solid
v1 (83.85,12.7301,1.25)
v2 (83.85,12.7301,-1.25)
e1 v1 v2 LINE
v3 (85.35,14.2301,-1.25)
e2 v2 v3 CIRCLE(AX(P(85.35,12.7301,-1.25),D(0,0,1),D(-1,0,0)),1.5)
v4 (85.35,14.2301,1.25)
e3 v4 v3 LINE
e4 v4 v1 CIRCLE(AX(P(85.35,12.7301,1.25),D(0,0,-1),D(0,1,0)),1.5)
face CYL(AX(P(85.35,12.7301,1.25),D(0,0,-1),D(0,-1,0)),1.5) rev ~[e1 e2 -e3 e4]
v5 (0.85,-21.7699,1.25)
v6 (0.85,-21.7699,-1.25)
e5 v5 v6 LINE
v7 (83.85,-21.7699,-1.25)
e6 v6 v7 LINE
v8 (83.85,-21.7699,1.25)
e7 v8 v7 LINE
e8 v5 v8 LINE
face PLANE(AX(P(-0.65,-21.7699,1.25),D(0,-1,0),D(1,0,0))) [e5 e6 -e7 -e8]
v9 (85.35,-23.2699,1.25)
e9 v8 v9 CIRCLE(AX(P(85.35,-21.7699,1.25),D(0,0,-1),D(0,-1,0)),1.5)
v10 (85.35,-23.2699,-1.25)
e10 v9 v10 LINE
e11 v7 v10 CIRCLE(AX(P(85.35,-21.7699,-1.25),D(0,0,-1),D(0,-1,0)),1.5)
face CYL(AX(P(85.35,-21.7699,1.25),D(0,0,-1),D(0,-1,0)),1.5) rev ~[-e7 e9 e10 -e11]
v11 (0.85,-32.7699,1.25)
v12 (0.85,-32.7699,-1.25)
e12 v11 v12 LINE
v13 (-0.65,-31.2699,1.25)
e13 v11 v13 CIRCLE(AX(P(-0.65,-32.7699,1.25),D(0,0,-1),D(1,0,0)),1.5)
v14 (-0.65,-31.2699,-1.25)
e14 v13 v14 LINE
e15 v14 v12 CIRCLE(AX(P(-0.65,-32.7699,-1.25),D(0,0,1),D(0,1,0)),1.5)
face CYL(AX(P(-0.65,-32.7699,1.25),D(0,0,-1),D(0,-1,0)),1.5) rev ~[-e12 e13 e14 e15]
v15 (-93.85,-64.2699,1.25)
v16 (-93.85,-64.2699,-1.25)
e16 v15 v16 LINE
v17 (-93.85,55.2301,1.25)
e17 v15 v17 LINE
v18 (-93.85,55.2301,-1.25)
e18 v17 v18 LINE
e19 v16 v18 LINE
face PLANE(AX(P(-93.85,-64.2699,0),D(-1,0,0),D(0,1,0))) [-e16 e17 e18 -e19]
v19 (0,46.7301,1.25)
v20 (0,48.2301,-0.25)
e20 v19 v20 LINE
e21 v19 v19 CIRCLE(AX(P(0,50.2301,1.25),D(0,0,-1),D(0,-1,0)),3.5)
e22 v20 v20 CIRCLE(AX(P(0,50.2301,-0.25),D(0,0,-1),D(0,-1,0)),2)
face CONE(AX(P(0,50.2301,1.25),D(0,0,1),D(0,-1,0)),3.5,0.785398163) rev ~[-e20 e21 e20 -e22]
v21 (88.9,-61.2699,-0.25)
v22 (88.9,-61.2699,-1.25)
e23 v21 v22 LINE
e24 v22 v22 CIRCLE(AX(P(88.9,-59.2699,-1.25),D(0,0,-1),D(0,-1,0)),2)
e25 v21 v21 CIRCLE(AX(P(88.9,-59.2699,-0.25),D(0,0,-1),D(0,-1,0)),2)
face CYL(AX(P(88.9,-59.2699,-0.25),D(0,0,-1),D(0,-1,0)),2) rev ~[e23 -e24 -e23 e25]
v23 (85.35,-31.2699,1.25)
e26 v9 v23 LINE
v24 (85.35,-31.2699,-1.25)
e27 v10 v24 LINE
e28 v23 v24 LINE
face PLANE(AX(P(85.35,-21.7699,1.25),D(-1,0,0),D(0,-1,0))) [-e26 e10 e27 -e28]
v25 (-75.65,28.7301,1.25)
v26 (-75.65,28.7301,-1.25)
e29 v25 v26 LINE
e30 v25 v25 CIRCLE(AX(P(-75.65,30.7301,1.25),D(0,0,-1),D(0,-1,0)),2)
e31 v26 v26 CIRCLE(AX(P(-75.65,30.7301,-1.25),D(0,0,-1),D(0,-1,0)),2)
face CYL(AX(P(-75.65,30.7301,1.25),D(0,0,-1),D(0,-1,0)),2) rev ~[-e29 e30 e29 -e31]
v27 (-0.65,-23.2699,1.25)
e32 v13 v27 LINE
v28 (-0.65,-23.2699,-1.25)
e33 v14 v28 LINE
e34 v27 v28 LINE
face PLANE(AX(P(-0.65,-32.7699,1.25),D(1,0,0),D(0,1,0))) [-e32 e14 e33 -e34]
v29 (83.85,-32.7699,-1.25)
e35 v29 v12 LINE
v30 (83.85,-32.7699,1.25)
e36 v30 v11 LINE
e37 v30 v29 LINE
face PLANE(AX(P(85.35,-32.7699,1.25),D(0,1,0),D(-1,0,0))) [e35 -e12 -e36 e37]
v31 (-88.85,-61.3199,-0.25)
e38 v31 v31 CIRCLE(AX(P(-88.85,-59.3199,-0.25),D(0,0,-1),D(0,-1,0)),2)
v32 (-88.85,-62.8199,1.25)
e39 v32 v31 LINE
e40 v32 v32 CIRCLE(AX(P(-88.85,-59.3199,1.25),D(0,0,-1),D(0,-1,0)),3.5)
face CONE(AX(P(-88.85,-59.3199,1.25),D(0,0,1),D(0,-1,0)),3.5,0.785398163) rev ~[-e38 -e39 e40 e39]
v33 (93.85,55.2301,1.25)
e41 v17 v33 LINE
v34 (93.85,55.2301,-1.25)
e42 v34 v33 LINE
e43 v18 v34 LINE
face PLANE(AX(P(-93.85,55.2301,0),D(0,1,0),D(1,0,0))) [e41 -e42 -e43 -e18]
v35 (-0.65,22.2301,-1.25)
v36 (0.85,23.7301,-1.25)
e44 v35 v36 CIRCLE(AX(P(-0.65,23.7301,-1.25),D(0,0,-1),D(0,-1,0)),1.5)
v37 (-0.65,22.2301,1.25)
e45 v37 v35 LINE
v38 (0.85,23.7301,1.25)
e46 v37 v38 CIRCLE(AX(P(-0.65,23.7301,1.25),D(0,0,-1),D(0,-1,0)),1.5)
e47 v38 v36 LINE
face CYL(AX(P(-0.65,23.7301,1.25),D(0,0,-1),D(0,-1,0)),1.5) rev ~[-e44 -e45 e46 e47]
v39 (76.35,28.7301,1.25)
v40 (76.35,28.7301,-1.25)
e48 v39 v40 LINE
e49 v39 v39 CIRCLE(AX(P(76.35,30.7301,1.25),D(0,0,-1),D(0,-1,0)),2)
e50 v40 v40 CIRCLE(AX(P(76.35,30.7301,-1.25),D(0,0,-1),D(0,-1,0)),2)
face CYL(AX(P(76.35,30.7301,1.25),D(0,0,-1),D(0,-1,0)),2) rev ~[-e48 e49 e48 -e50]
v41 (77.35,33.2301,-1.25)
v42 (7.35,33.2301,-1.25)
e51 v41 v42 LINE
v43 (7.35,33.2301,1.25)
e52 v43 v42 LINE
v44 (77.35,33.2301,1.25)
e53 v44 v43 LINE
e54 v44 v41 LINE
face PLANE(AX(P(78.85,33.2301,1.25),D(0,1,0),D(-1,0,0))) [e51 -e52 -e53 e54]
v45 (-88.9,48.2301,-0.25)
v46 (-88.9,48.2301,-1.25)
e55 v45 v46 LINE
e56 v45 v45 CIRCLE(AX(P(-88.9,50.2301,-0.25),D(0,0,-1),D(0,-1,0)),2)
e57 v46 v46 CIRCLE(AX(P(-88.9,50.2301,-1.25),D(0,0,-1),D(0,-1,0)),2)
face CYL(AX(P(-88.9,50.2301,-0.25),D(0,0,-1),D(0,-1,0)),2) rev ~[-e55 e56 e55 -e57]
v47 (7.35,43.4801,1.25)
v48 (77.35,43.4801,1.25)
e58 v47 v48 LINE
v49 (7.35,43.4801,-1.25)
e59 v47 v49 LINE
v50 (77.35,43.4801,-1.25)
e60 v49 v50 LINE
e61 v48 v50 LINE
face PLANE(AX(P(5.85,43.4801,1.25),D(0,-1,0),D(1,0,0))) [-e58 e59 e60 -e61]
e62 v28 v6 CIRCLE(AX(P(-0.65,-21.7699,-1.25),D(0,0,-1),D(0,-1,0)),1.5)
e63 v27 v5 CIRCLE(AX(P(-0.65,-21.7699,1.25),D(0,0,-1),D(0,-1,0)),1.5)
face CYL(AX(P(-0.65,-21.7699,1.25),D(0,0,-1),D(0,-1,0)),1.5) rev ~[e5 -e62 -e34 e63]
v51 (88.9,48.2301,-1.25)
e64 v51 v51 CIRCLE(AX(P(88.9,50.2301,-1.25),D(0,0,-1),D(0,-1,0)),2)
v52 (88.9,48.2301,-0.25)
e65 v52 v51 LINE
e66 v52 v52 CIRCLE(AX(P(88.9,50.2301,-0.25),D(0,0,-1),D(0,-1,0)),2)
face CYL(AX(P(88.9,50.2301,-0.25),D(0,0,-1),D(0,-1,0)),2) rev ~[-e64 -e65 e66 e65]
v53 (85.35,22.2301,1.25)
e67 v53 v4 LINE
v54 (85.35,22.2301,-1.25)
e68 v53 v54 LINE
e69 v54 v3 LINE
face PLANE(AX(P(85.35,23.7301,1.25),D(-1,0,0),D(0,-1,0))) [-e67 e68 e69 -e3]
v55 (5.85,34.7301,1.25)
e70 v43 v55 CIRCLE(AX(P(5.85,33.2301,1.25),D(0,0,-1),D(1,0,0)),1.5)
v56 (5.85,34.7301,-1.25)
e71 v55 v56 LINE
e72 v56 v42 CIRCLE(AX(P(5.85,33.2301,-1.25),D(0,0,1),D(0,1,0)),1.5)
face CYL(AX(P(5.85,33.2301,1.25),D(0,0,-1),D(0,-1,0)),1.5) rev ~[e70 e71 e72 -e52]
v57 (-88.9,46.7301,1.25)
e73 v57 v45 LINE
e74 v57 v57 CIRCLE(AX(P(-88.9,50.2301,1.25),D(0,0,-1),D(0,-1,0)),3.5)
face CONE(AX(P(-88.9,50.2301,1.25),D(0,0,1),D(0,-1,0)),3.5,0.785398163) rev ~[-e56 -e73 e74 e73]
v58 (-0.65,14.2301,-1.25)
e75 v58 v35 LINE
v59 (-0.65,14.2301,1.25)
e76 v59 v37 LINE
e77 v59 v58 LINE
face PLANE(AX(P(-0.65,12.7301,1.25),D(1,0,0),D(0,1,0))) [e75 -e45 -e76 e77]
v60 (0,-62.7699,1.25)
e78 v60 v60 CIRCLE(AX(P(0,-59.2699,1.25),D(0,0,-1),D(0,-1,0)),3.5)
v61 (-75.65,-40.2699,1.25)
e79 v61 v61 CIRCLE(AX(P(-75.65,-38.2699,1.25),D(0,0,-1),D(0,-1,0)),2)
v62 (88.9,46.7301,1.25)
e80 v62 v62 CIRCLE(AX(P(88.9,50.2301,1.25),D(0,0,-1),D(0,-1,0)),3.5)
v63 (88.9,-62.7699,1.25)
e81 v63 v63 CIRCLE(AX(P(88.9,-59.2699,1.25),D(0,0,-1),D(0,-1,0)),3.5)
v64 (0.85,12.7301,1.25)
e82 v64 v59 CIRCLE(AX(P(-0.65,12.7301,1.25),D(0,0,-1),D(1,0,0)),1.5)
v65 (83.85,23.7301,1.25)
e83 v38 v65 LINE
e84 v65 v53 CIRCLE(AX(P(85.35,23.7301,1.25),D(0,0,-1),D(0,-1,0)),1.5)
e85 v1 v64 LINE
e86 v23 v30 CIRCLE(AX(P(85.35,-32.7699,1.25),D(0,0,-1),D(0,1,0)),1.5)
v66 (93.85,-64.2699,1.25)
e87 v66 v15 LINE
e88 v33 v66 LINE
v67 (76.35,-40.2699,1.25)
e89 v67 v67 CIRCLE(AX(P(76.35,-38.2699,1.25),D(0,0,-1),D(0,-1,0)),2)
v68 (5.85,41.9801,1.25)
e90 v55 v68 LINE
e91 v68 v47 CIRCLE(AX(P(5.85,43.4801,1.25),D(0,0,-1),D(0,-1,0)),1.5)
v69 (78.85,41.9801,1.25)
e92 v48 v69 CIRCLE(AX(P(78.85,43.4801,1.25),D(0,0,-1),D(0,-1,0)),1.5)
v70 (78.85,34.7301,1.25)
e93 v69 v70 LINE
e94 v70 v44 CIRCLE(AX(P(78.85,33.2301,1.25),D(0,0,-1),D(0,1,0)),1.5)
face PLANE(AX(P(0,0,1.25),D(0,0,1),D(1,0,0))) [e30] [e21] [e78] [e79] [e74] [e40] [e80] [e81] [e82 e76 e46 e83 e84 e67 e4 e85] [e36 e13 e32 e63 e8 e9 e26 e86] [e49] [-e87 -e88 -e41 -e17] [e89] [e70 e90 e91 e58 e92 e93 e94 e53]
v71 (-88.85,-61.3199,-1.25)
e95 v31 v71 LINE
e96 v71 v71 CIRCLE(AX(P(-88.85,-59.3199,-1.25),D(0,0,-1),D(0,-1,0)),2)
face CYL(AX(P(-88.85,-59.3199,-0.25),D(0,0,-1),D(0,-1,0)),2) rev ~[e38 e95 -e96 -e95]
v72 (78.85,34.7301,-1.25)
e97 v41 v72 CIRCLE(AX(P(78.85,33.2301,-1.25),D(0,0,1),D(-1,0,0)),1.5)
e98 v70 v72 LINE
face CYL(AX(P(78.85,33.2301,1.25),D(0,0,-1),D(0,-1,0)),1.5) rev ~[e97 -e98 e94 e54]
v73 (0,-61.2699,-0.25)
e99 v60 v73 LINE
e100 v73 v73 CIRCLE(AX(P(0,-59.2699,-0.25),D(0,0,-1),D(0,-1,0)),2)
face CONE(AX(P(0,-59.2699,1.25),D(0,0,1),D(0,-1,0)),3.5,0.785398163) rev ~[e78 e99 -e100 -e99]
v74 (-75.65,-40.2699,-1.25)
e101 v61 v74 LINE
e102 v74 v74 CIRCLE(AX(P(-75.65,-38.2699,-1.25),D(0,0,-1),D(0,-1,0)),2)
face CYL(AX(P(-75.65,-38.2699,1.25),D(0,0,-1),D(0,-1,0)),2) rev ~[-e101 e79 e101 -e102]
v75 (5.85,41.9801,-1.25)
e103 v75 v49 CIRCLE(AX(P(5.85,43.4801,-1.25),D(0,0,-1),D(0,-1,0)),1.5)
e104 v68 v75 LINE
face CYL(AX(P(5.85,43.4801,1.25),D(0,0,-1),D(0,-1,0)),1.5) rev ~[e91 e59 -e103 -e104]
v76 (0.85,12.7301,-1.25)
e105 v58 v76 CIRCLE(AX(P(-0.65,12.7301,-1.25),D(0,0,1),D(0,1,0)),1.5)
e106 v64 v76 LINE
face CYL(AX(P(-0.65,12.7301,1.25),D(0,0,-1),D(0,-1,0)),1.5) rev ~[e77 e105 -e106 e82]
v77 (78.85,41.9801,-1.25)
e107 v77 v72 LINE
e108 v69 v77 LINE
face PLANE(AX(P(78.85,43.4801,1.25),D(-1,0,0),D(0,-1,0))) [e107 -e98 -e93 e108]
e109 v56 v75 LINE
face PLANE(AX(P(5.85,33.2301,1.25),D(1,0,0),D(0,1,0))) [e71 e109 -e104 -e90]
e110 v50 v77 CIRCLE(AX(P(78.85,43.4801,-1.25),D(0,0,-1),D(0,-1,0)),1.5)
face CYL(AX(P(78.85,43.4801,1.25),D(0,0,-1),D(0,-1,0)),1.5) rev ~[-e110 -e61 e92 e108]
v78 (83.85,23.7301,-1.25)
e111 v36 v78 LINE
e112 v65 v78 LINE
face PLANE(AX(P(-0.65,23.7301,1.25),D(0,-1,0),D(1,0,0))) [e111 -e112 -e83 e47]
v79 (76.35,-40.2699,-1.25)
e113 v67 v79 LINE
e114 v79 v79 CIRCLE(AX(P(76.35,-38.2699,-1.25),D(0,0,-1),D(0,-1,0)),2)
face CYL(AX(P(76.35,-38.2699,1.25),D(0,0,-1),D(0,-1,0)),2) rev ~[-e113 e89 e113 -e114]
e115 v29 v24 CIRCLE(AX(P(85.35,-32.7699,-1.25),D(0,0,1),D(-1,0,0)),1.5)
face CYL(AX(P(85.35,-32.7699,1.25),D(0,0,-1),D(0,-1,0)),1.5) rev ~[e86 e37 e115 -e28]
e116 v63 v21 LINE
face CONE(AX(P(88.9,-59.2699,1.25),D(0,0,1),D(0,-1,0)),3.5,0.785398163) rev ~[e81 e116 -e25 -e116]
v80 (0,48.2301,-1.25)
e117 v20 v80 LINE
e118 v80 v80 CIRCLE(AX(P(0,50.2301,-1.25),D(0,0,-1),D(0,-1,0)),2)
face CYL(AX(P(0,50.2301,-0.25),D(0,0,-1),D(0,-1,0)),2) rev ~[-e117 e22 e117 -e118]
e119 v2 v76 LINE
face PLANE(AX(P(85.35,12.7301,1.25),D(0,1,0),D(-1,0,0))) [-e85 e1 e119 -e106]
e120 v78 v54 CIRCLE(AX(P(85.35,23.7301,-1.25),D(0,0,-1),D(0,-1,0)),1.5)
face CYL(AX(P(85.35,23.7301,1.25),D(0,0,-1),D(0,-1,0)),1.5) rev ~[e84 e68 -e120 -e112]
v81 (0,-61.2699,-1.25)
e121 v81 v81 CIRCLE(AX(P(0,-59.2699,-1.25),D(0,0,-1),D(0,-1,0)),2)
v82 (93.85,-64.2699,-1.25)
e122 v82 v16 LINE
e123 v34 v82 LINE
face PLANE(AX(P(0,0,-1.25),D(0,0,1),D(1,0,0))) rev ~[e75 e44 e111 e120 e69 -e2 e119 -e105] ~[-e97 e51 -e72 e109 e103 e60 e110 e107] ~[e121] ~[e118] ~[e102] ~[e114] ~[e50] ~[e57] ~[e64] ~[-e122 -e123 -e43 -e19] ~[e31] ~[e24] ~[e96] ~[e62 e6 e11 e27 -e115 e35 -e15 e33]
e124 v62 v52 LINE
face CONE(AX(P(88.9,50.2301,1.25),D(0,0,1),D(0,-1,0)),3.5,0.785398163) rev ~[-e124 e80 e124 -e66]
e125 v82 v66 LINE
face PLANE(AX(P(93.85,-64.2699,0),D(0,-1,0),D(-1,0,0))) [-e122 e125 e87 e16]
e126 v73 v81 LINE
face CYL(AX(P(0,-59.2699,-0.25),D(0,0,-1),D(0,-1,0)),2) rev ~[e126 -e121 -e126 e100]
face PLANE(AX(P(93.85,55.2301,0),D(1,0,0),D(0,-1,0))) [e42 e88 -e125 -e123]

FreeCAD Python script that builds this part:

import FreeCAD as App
import Part
import Sketcher
from FreeCAD import Vector
Q = App.Units.Quantity

doc = App.newDocument("Part")
params = doc.addObject("Spreadsheet::Sheet", "Params")
for row, (alias, value) in enumerate([
    ("sketch1_width", "187.7 mm"),
    ("sketch1_height", "119.5 mm"),
    ("pad1_length", "2.5 mm"),
    ("sketch2_diameter", "4 mm"),
    ("hole_diameter", "4 mm"),
    ("hole_csink_diameter", "7 mm"),
    ("sketch3_diameter", "4 mm"),
    ("hole2_diameter", "4 mm"),
    ("hole2_csink_diameter", "7 mm"),
    ("sketch4_diameter", "4 mm"),
    ("hole3_diameter", "4 mm"),
    ("hole3_csink_diameter", "7 mm"),
    ("sketch5_diameter", "4 mm"),
    ("hole4_diameter", "4 mm"),
    ("hole4_csink_diameter", "7 mm"),
    ("sketch6_diameter", "4 mm"),
    ("hole5_diameter", "4 mm"),
    ("hole5_csink_diameter", "7 mm"),
    ("sketch7_diameter", "4 mm"),
    ("hole6_diameter", "4 mm"),
    ("hole6_csink_diameter", "7 mm"),
    ("sketch8_diameter", "4 mm"),
    ("hole7_diameter", "4 mm"),
    ("sketch9_diameter", "4 mm"),
    ("hole8_diameter", "4 mm"),
    ("sketch10_diameter", "4 mm"),
    ("hole9_diameter", "4 mm"),
    ("sketch11_diameter", "4 mm"),
    ("hole10_diameter", "4 mm"),
    ("sketch12_width", "86 mm"),
    ("sketch12_height", "11 mm"),
    ("linearpattern_pitch", "45.5 mm"),
    ("sketch13_width", "73 mm"),
    ("sketch13_height", "10.25 mm"),
    ("sketch14_diameter", "3 mm"),
    ("hole11_diameter", "3 mm"),
    ("sketch15_diameter", "3 mm"),
    ("hole12_diameter", "3 mm"),
    ("sketch16_diameter", "3 mm"),
    ("hole13_diameter", "3 mm"),
    ("sketch17_diameter", "3 mm"),
    ("hole14_diameter", "3 mm"),
    ("sketch18_diameter", "3 mm"),
    ("hole15_diameter", "3 mm"),
    ("sketch19_diameter", "3 mm"),
    ("hole16_diameter", "3 mm"),
    ("sketch20_diameter", "3 mm"),
    ("hole17_diameter", "3 mm"),
    ("sketch21_diameter", "3 mm"),
    ("hole18_diameter", "3 mm"),
    ("sketch22_diameter", "3 mm"),
    ("hole19_diameter", "3 mm"),
    ("sketch23_diameter", "3 mm"),
    ("hole20_diameter", "3 mm"),
    ("sketch24_diameter", "3 mm"),
    ("hole21_diameter", "3 mm"),
    ("sketch25_diameter", "3 mm"),
    ("hole22_diameter", "3 mm"),
], start=1):
    params.set(f"A{row}", alias)
    params.set(f"B{row}", "=" + value)
    params.setAlias(f"B{row}", alias)

body = doc.addObject("PartDesign::Body", "Body")

sketch1 = body.newObject("Sketcher::SketchObject", "Sketch")
sketch1.AttachmentSupport = (doc.getObject("XY_Plane"), [""])
sketch1.MapMode = "FlatFace"
sketch1.addGeometry([
    Part.LineSegment(Vector(-93.85, -64.2699, 0), Vector(93.85, -64.2699, 0)),
    Part.LineSegment(Vector(93.85, -64.2699, 0), Vector(93.85, 55.2301, 0)),
    Part.LineSegment(Vector(93.85, 55.2301, 0), Vector(-93.85, 55.2301, 0)),
    Part.LineSegment(Vector(-93.85, 55.2301, 0), Vector(-93.85, -64.2699, 0)),
], False)
sketch1.addConstraint([
    Sketcher.Constraint("Coincident", 0, 2, 1, 1),
    Sketcher.Constraint("Coincident", 1, 2, 2, 1),
    Sketcher.Constraint("Coincident", 2, 2, 3, 1),
    Sketcher.Constraint("Coincident", 3, 2, 0, 1),
    Sketcher.Constraint("Horizontal", 0),
    Sketcher.Constraint("Vertical", 1),
    Sketcher.Constraint("Horizontal", 2),
    Sketcher.Constraint("Vertical", 3),
    Sketcher.Constraint("DistanceX", 0, 1, 0, 2, Q("187.7 mm")),
    Sketcher.Constraint("DistanceY", 1, 1, 1, 2, Q("119.5 mm")),
    Sketcher.Constraint("DistanceX", -1, 1, 0, 2, Q("93.85 mm")),
    Sketcher.Constraint("DistanceY", 0, 2, -1, 1, Q("64.27 mm")),
])
sketch1.setExpression("Constraints[8]", "Params.sketch1_width")
sketch1.setExpression("Constraints[9]", "Params.sketch1_height")
pad1 = body.newObject("PartDesign::Pad", "Pad")
pad1.Profile = sketch1
pad1.setExpression("Length", "Params.pad1_length")
pad1.Midplane = True

sketch2 = body.newObject("Sketcher::SketchObject", "Sketch001")
sketch2.AttachmentSupport = (doc.getObject("XY_Plane"), [""])
sketch2.MapMode = "FlatFace"
sketch2.AttachmentOffset = App.Placement(Vector(0, 0, 1.25), App.Rotation())
sketch2.addGeometry(Part.Circle(Vector(-88.85, -59.3199, 0), Vector(0, 0, 1), 2), False)
sketch2.addConstraint([
    Sketcher.Constraint("Diameter", 0, Q("4 mm")),
    Sketcher.Constraint("DistanceX", 0, 3, -1, 1, Q("88.85 mm")),
    Sketcher.Constraint("DistanceY", 0, 3, -1, 1, Q("59.32 mm")),
])
sketch2.setExpression("Constraints[0]", "Params.sketch2_diameter")
doc.recompute()
hole = body.newObject("PartDesign::Hole", "Hole")
hole.Profile = sketch2
hole.ThreadType = "None"
hole.setExpression("Diameter", "Params.hole_diameter")
hole.DepthType = "ThroughAll"
hole.HoleCutType = "Countersink"
hole.setExpression("HoleCutDiameter", "Params.hole_csink_diameter")
hole.HoleCutCountersinkAngle = 90

sketch3 = body.newObject("Sketcher::SketchObject", "Sketch002")
sketch3.AttachmentSupport = (doc.getObject("XY_Plane"), [""])
sketch3.MapMode = "FlatFace"
sketch3.AttachmentOffset = App.Placement(Vector(0, 0, 1.25), App.Rotation())
sketch3.addGeometry(Part.Circle(Vector(0, -59.2699, 0), Vector(0, 0, 1), 2), False)
sketch3.addConstraint([
    Sketcher.Constraint("PointOnObject", 0, 3, -2),
    Sketcher.Constraint("Diameter", 0, Q("4 mm")),
    Sketcher.Constraint("DistanceY", 0, 3, -1, 1, Q("59.27 mm")),
])
sketch3.setExpression("Constraints[1]", "Params.sketch3_diameter")
doc.recompute()
hole2 = body.newObject("PartDesign::Hole", "Hole001")
hole2.Profile = sketch3
hole2.ThreadType = "None"
hole2.setExpression("Diameter", "Params.hole2_diameter")
hole2.DepthType = "ThroughAll"
hole2.HoleCutType = "Countersink"
hole2.setExpression("HoleCutDiameter", "Params.hole2_csink_diameter")
hole2.HoleCutCountersinkAngle = 90

sketch4 = body.newObject("Sketcher::SketchObject", "Sketch003")
sketch4.AttachmentSupport = (doc.getObject("XY_Plane"), [""])
sketch4.MapMode = "FlatFace"
sketch4.AttachmentOffset = App.Placement(Vector(0, 0, 1.25), App.Rotation())
sketch4.addGeometry(Part.Circle(Vector(88.9, -59.2699, 0), Vector(0, 0, 1), 2), False)
sketch4.addConstraint([
    Sketcher.Constraint("Diameter", 0, Q("4 mm")),
    Sketcher.Constraint("DistanceX", -1, 1, 0, 3, Q("88.9 mm")),
    Sketcher.Constraint("DistanceY", 0, 3, -1, 1, Q("59.27 mm")),
])
sketch4.setExpression("Constraints[0]", "Params.sketch4_diameter")
doc.recompute()
hole3 = body.newObject("PartDesign::Hole", "Hole002")
hole3.Profile = sketch4
hole3.ThreadType = "None"
hole3.setExpression("Diameter", "Params.hole3_diameter")
hole3.DepthType = "ThroughAll"
hole3.HoleCutType = "Countersink"
hole3.setExpression("HoleCutDiameter", "Params.hole3_csink_diameter")
hole3.HoleCutCountersinkAngle = 90

sketch5 = body.newObject("Sketcher::SketchObject", "Sketch004")
sketch5.AttachmentSupport = (doc.getObject("XY_Plane"), [""])
sketch5.MapMode = "FlatFace"
sketch5.AttachmentOffset = App.Placement(Vector(0, 0, 1.25), App.Rotation())
sketch5.addGeometry(Part.Circle(Vector(-88.9, 50.2301, 0), Vector(0, 0, 1), 2), False)
sketch5.addConstraint([
    Sketcher.Constraint("Diameter", 0, Q("4 mm")),
    Sketcher.Constraint("DistanceX", 0, 3, -1, 1, Q("88.9 mm")),
    Sketcher.Constraint("DistanceY", -1, 1, 0, 3, Q("50.23 mm")),
])
sketch5.setExpression("Constraints[0]", "Params.sketch5_diameter")
doc.recompute()
hole4 = body.newObject("PartDesign::Hole", "Hole003")
hole4.Profile = sketch5
hole4.ThreadType = "None"
hole4.setExpression("Diameter", "Params.hole4_diameter")
hole4.DepthType = "ThroughAll"
hole4.HoleCutType = "Countersink"
hole4.setExpression("HoleCutDiameter", "Params.hole4_csink_diameter")
hole4.HoleCutCountersinkAngle = 90

sketch6 = body.newObject("Sketcher::SketchObject", "Sketch005")
sketch6.AttachmentSupport = (doc.getObject("XY_Plane"), [""])
sketch6.MapMode = "FlatFace"
sketch6.AttachmentOffset = App.Placement(Vector(0, 0, 1.25), App.Rotation())
sketch6.addGeometry(Part.Circle(Vector(0, 50.2301, 0), Vector(0, 0, 1), 2), False)
sketch6.addConstraint([
    Sketcher.Constraint("PointOnObject", 0, 3, -2),
    Sketcher.Constraint("Diameter", 0, Q("4 mm")),
    Sketcher.Constraint("DistanceY", -1, 1, 0, 3, Q("50.23 mm")),
])
sketch6.setExpression("Constraints[1]", "Params.sketch6_diameter")
doc.recompute()
hole5 = body.newObject("PartDesign::Hole", "Hole004")
hole5.Profile = sketch6
hole5.ThreadType = "None"
hole5.setExpression("Diameter", "Params.hole5_diameter")
hole5.DepthType = "ThroughAll"
hole5.HoleCutType = "Countersink"
hole5.setExpression("HoleCutDiameter", "Params.hole5_csink_diameter")
hole5.HoleCutCountersinkAngle = 90

sketch7 = body.newObject("Sketcher::SketchObject", "Sketch006")
sketch7.AttachmentSupport = (doc.getObject("XY_Plane"), [""])
sketch7.MapMode = "FlatFace"
sketch7.AttachmentOffset = App.Placement(Vector(0, 0, 1.25), App.Rotation())
sketch7.addGeometry(Part.Circle(Vector(88.9, 50.2301, 0), Vector(0, 0, 1), 2), False)
sketch7.addConstraint([
    Sketcher.Constraint("Diameter", 0, Q("4 mm")),
    Sketcher.Constraint("DistanceX", -1, 1, 0, 3, Q("88.9 mm")),
    Sketcher.Constraint("DistanceY", -1, 1, 0, 3, Q("50.23 mm")),
])
sketch7.setExpression("Constraints[0]", "Params.sketch7_diameter")
doc.recompute()
hole6 = body.newObject("PartDesign::Hole", "Hole005")
hole6.Profile = sketch7
hole6.ThreadType = "None"
hole6.setExpression("Diameter", "Params.hole6_diameter")
hole6.DepthType = "ThroughAll"
hole6.HoleCutType = "Countersink"
hole6.setExpression("HoleCutDiameter", "Params.hole6_csink_diameter")
hole6.HoleCutCountersinkAngle = 90

sketch8 = body.newObject("Sketcher::SketchObject", "Sketch007")
sketch8.AttachmentSupport = (doc.getObject("XY_Plane"), [""])
sketch8.MapMode = "FlatFace"
sketch8.AttachmentOffset = App.Placement(Vector(0, 0, 1.25), App.Rotation())
sketch8.addGeometry(Part.Circle(Vector(76.35, -38.2699, 0), Vector(0, 0, 1), 2), False)
sketch8.addConstraint([
    Sketcher.Constraint("Diameter", 0, Q("4 mm")),
    Sketcher.Constraint("DistanceX", -1, 1, 0, 3, Q("76.35 mm")),
    Sketcher.Constraint("DistanceY", 0, 3, -1, 1, Q("38.27 mm")),
])
sketch8.setExpression("Constraints[0]", "Params.sketch8_diameter")
doc.recompute()
hole7 = body.newObject("PartDesign::Hole", "Hole006")
hole7.Profile = sketch8
hole7.ThreadType = "None"
hole7.setExpression("Diameter", "Params.hole7_diameter")
hole7.DepthType = "ThroughAll"

sketch9 = body.newObject("Sketcher::SketchObject", "Sketch008")
sketch9.AttachmentSupport = (doc.getObject("XY_Plane"), [""])
sketch9.MapMode = "FlatFace"
sketch9.AttachmentOffset = App.Placement(Vector(0, 0, 1.25), App.Rotation())
sketch9.addGeometry(Part.Circle(Vector(76.35, 30.7301, 0), Vector(0, 0, 1), 2), False)
sketch9.addConstraint([
    Sketcher.Constraint("Diameter", 0, Q("4 mm")),
    Sketcher.Constraint("DistanceX", -1, 1, 0, 3, Q("76.35 mm")),
    Sketcher.Constraint("DistanceY", -1, 1, 0, 3, Q("30.73 mm")),
])
sketch9.setExpression("Constraints[0]", "Params.sketch9_diameter")
doc.recompute()
hole8 = body.newObject("PartDesign::Hole", "Hole007")
hole8.Profile = sketch9
hole8.ThreadType = "None"
hole8.setExpression("Diameter", "Params.hole8_diameter")
hole8.DepthType = "ThroughAll"

sketch10 = body.newObject("Sketcher::SketchObject", "Sketch009")
sketch10.AttachmentSupport = (doc.getObject("XY_Plane"), [""])
sketch10.MapMode = "FlatFace"
sketch10.AttachmentOffset = App.Placement(Vector(0, 0, 1.25), App.Rotation())
sketch10.addGeometry(Part.Circle(Vector(-75.65, -38.2699, 0), Vector(0, 0, 1), 2), False)
sketch10.addConstraint([
    Sketcher.Constraint("Diameter", 0, Q("4 mm")),
    Sketcher.Constraint("DistanceX", 0, 3, -1, 1, Q("75.65 mm")),
    Sketcher.Constraint("DistanceY", 0, 3, -1, 1, Q("38.27 mm")),
])
sketch10.setExpression("Constraints[0]", "Params.sketch10_diameter")
doc.recompute()
hole9 = body.newObject("PartDesign::Hole", "Hole008")
hole9.Profile = sketch10
hole9.ThreadType = "None"
hole9.setExpression("Diameter", "Params.hole9_diameter")
hole9.DepthType = "ThroughAll"

sketch11 = body.newObject("Sketcher::SketchObject", "Sketch010")
sketch11.AttachmentSupport = (doc.getObject("XY_Plane"), [""])
sketch11.MapMode = "FlatFace"
sketch11.AttachmentOffset = App.Placement(Vector(0, 0, 1.25), App.Rotation())
sketch11.addGeometry(Part.Circle(Vector(-75.65, 30.7301, 0), Vector(0, 0, 1), 2), False)
sketch11.addConstraint([
    Sketcher.Constraint("Diameter", 0, Q("4 mm")),
    Sketcher.Constraint("DistanceX", 0, 3, -1, 1, Q("75.65 mm")),
    Sketcher.Constraint("DistanceY", -1, 1, 0, 3, Q("30.73 mm")),
])
sketch11.setExpression("Constraints[0]", "Params.sketch11_diameter")
doc.recompute()
hole10 = body.newObject("PartDesign::Hole", "Hole009")
hole10.Profile = sketch11
hole10.ThreadType = "None"
hole10.setExpression("Diameter", "Params.hole10_diameter")
hole10.DepthType = "ThroughAll"

sketch12 = body.newObject("Sketcher::SketchObject", "Sketch011")
sketch12.AttachmentSupport = (doc.getObject("XY_Plane"), [""])
sketch12.MapMode = "FlatFace"
sketch12.AttachmentOffset = App.Placement(Vector(0, 0, 1.25), App.Rotation())
sketch12.addGeometry([
    Part.LineSegment(Vector(85.35, -21.7699, 0), Vector(-0.65, -21.7699, 0)),
    Part.LineSegment(Vector(-0.65, -21.7699, 0), Vector(-0.65, -32.7699, 0)),
    Part.LineSegment(Vector(-0.65, -32.7699, 0), Vector(85.35, -32.7699, 0)),
    Part.LineSegment(Vector(85.35, -32.7699, 0), Vector(85.35, -21.7699, 0)),
], False)
sketch12.addConstraint([
    Sketcher.Constraint("Coincident", 0, 2, 1, 1),
    Sketcher.Constraint("Coincident", 1, 2, 2, 1),
    Sketcher.Constraint("Coincident", 2, 2, 3, 1),
    Sketcher.Constraint("Coincident", 3, 2, 0, 1),
    Sketcher.Constraint("Horizontal", 0),
    Sketcher.Constraint("Vertical", 1),
    Sketcher.Constraint("Horizontal", 2),
    Sketcher.Constraint("Vertical", 3),
    Sketcher.Constraint("DistanceX", 0, 2, 0, 1, Q("86 mm")),
    Sketcher.Constraint("DistanceY", 1, 2, 1, 1, Q("11 mm")),
    Sketcher.Constraint("DistanceX", 0, 2, -1, 1, Q("0.65 mm")),
    Sketcher.Constraint("DistanceY", 0, 2, -1, 1, Q("21.77 mm")),
])
sketch12.setExpression("Constraints[8]", "Params.sketch12_width")
sketch12.setExpression("Constraints[9]", "Params.sketch12_height")
pocket1 = body.newObject("PartDesign::Pocket", "Pocket")
pocket1.Profile = sketch12
pocket1.Type = "ThroughAll"
pocket1.Midplane = True
doc.recompute()

linearpattern = body.newObject("PartDesign::LinearPattern", "LinearPattern")
linearpattern.Originals = [pocket1]
linearpattern.Direction = (doc.getObject("Y_Axis"), [""])
linearpattern.Mode = "offset"
linearpattern.setExpression("Offset", "Params.linearpattern_pitch")
linearpattern.Occurrences = 2
body.Tip = linearpattern

sketch13 = body.newObject("Sketcher::SketchObject", "Sketch012")
sketch13.AttachmentSupport = (doc.getObject("XY_Plane"), [""])
sketch13.MapMode = "FlatFace"
sketch13.AttachmentOffset = App.Placement(Vector(0, 0, 1.25), App.Rotation())
sketch13.addGeometry([
    Part.LineSegment(Vector(78.85, 43.4801, 0), Vector(5.85, 43.4801, 0)),
    Part.LineSegment(Vector(5.85, 43.4801, 0), Vector(5.85, 33.2301, 0)),
    Part.LineSegment(Vector(5.85, 33.2301, 0), Vector(78.85, 33.2301, 0)),
    Part.LineSegment(Vector(78.85, 33.2301, 0), Vector(78.85, 43.4801, 0)),
], False)
sketch13.addConstraint([
    Sketcher.Constraint("Coincident", 0, 2, 1, 1),
    Sketcher.Constraint("Coincident", 1, 2, 2, 1),
    Sketcher.Constraint("Coincident", 2, 2, 3, 1),
    Sketcher.Constraint("Coincident", 3, 2, 0, 1),
    Sketcher.Constraint("Horizontal", 0),
    Sketcher.Constraint("Vertical", 1),
    Sketcher.Constraint("Horizontal", 2),
    Sketcher.Constraint("Vertical", 3),
    Sketcher.Constraint("DistanceX", 0, 2, 0, 1, Q("73 mm")),
    Sketcher.Constraint("DistanceY", 1, 2, 1, 1, Q("10.25 mm")),
    Sketcher.Constraint("DistanceX", -1, 1, 0, 2, Q("5.85 mm")),
    Sketcher.Constraint("DistanceY", -1, 1, 0, 2, Q("43.48 mm")),
])
sketch13.setExpression("Constraints[8]", "Params.sketch13_width")
sketch13.setExpression("Constraints[9]", "Params.sketch13_height")
pocket2 = body.newObject("PartDesign::Pocket", "Pocket001")
pocket2.Profile = sketch13
pocket2.Type = "ThroughAll"

sketch14 = body.newObject("Sketcher::SketchObject", "Sketch013")
sketch14.AttachmentSupport = (doc.getObject("XY_Plane"), [""])
sketch14.MapMode = "FlatFace"
sketch14.AttachmentOffset = App.Placement(Vector(0, 0, 1.25), App.Rotation())
sketch14.addGeometry(Part.Circle(Vector(5.85, 43.4801, 0), Vector(0, 0, 1), 1.5), False)
sketch14.addConstraint([
    Sketcher.Constraint("Diameter", 0, Q("3 mm")),
    Sketcher.Constraint("DistanceX", -1, 1, 0, 3, Q("5.85 mm")),
    Sketcher.Constraint("DistanceY", -1, 1, 0, 3, Q("43.48 mm")),
])
sketch14.setExpression("Constraints[0]", "Params.sketch14_diameter")
doc.recompute()
hole11 = body.newObject("PartDesign::Hole", "Hole010")
hole11.Profile = sketch14
hole11.ThreadType = "None"
hole11.setExpression("Diameter", "Params.hole11_diameter")
hole11.DepthType = "ThroughAll"

sketch15 = body.newObject("Sketcher::SketchObject", "Sketch014")
sketch15.AttachmentSupport = (doc.getObject("XY_Plane"), [""])
sketch15.MapMode = "FlatFace"
sketch15.AttachmentOffset = App.Placement(Vector(0, 0, 1.25), App.Rotation())
sketch15.addGeometry(Part.Circle(Vector(78.85, 43.4801, 0), Vector(0, 0, 1), 1.5), False)
sketch15.addConstraint([
    Sketcher.Constraint("Diameter", 0, Q("3 mm")),
    Sketcher.Constraint("DistanceX", -1, 1, 0, 3, Q("78.85 mm")),
    Sketcher.Constraint("DistanceY", -1, 1, 0, 3, Q("43.48 mm")),
])
sketch15.setExpression("Constraints[0]", "Params.sketch15_diameter")
doc.recompute()
hole12 = body.newObject("PartDesign::Hole", "Hole011")
hole12.Profile = sketch15
hole12.ThreadType = "None"
hole12.setExpression("Diameter", "Params.hole12_diameter")
hole12.DepthType = "ThroughAll"

sketch16 = body.newObject("Sketcher::SketchObject", "Sketch015")
sketch16.AttachmentSupport = (doc.getObject("XY_Plane"), [""])
sketch16.MapMode = "FlatFace"
sketch16.AttachmentOffset = App.Placement(Vector(0, 0, 1.25), App.Rotation())
sketch16.addGeometry(Part.Circle(Vector(5.85, 33.2301, 0), Vector(0, 0, 1), 1.5), False)
sketch16.addConstraint([
    Sketcher.Constraint("Diameter", 0, Q("3 mm")),
    Sketcher.Constraint("DistanceX", -1, 1, 0, 3, Q("5.85 mm")),
    Sketcher.Constraint("DistanceY", -1, 1, 0, 3, Q("33.23 mm")),
])
sketch16.setExpression("Constraints[0]", "Params.sketch16_diameter")
doc.recompute()
hole13 = body.newObject("PartDesign::Hole", "Hole012")
hole13.Profile = sketch16
hole13.ThreadType = "None"
hole13.setExpression("Diameter", "Params.hole13_diameter")
hole13.DepthType = "ThroughAll"

sketch17 = body.newObject("Sketcher::SketchObject", "Sketch016")
sketch17.AttachmentSupport = (doc.getObject("XY_Plane"), [""])
sketch17.MapMode = "FlatFace"
sketch17.AttachmentOffset = App.Placement(Vector(0, 0, 1.25), App.Rotation())
sketch17.addGeometry(Part.Circle(Vector(78.85, 33.2301, 0), Vector(0, 0, 1), 1.5), False)
sketch17.addConstraint([
    Sketcher.Constraint("Diameter", 0, Q("3 mm")),
    Sketcher.Constraint("DistanceX", -1, 1, 0, 3, Q("78.85 mm")),
    Sketcher.Constraint("DistanceY", -1, 1, 0, 3, Q("33.23 mm")),
])
sketch17.setExpression("Constraints[0]", "Params.sketch17_diameter")
doc.recompute()
hole14 = body.newObject("PartDesign::Hole", "Hole013")
hole14.Profile = sketch17
hole14.ThreadType = "None"
hole14.setExpression("Diameter", "Params.hole14_diameter")
hole14.DepthType = "ThroughAll"

sketch18 = body.newObject("Sketcher::SketchObject", "Sketch017")
sketch18.AttachmentSupport = (doc.getObject("XY_Plane"), [""])
sketch18.MapMode = "FlatFace"
sketch18.AttachmentOffset = App.Placement(Vector(0, 0, 1.25), App.Rotation())
sketch18.addGeometry(Part.Circle(Vector(-0.65, 23.7301, 0), Vector(0, 0, 1), 1.5), False)
sketch18.addConstraint([
    Sketcher.Constraint("Diameter", 0, Q("3 mm")),
    Sketcher.Constraint("DistanceX", 0, 3, -1, 1, Q("0.65 mm")),
    Sketcher.Constraint("DistanceY", -1, 1, 0, 3, Q("23.73 mm")),
])
sketch18.setExpression("Constraints[0]", "Params.sketch18_diameter")
doc.recompute()
hole15 = body.newObject("PartDesign::Hole", "Hole014")
hole15.Profile = sketch18
hole15.ThreadType = "None"
hole15.setExpression("Diameter", "Params.hole15_diameter")
hole15.DepthType = "ThroughAll"

sketch19 = body.newObject("Sketcher::SketchObject", "Sketch018")
sketch19.AttachmentSupport = (doc.getObject("XY_Plane"), [""])
sketch19.MapMode = "FlatFace"
sketch19.AttachmentOffset = App.Placement(Vector(0, 0, 1.25), App.Rotation())
sketch19.addGeometry(Part.Circle(Vector(-0.65, 12.7301, 0), Vector(0, 0, 1), 1.5), False)
sketch19.addConstraint([
    Sketcher.Constraint("Diameter", 0, Q("3 mm")),
    Sketcher.Constraint("DistanceX", 0, 3, -1, 1, Q("0.65 mm")),
    Sketcher.Constraint("DistanceY", -1, 1, 0, 3, Q("12.73 mm")),
])
sketch19.setExpression("Constraints[0]", "Params.sketch19_diameter")
doc.recompute()
hole16 = body.newObject("PartDesign::Hole", "Hole015")
hole16.Profile = sketch19
hole16.ThreadType = "None"
hole16.setExpression("Diameter", "Params.hole16_diameter")
hole16.DepthType = "ThroughAll"

sketch20 = body.newObject("Sketcher::SketchObject", "Sketch019")
sketch20.AttachmentSupport = (doc.getObject("XY_Plane"), [""])
sketch20.MapMode = "FlatFace"
sketch20.AttachmentOffset = App.Placement(Vector(0, 0, 1.25), App.Rotation())
sketch20.addGeometry(Part.Circle(Vector(85.35, 12.7301, 0), Vector(0, 0, 1), 1.5), False)
sketch20.addConstraint([
    Sketcher.Constraint("Diameter", 0, Q("3 mm")),
    Sketcher.Constraint("DistanceX", -1, 1, 0, 3, Q("85.35 mm")),
    Sketcher.Constraint("DistanceY", -1, 1, 0, 3, Q("12.73 mm")),
])
sketch20.setExpression("Constraints[0]", "Params.sketch20_diameter")
doc.recompute()
hole17 = body.newObject("PartDesign::Hole", "Hole016")
hole17.Profile = sketch20
hole17.ThreadType = "None"
hole17.setExpression("Diameter", "Params.hole17_diameter")
hole17.DepthType = "ThroughAll"

sketch21 = body.newObject("Sketcher::SketchObject", "Sketch020")
sketch21.AttachmentSupport = (doc.getObject("XY_Plane"), [""])
sketch21.MapMode = "FlatFace"
sketch21.AttachmentOffset = App.Placement(Vector(0, 0, 1.25), App.Rotation())
sketch21.addGeometry(Part.Circle(Vector(85.35, 23.7301, 0), Vector(0, 0, 1), 1.5), False)
sketch21.addConstraint([
    Sketcher.Constraint("Diameter", 0, Q("3 mm")),
    Sketcher.Constraint("DistanceX", -1, 1, 0, 3, Q("85.35 mm")),
    Sketcher.Constraint("DistanceY", -1, 1, 0, 3, Q("23.73 mm")),
])
sketch21.setExpression("Constraints[0]", "Params.sketch21_diameter")
doc.recompute()
hole18 = body.newObject("PartDesign::Hole", "Hole017")
hole18.Profile = sketch21
hole18.ThreadType = "None"
hole18.setExpression("Diameter", "Params.hole18_diameter")
hole18.DepthType = "ThroughAll"

sketch22 = body.newObject("Sketcher::SketchObject", "Sketch021")
sketch22.AttachmentSupport = (doc.getObject("XY_Plane"), [""])
sketch22.MapMode = "FlatFace"
sketch22.AttachmentOffset = App.Placement(Vector(0, 0, 1.25), App.Rotation())
sketch22.addGeometry(Part.Circle(Vector(-0.65, -21.7699, 0), Vector(0, 0, 1), 1.5), False)
sketch22.addConstraint([
    Sketcher.Constraint("Diameter", 0, Q("3 mm")),
    Sketcher.Constraint("DistanceX", 0, 3, -1, 1, Q("0.65 mm")),
    Sketcher.Constraint("DistanceY", 0, 3, -1, 1, Q("21.77 mm")),
])
sketch22.setExpression("Constraints[0]", "Params.sketch22_diameter")
doc.recompute()
hole19 = body.newObject("PartDesign::Hole", "Hole018")
hole19.Profile = sketch22
hole19.ThreadType = "None"
hole19.setExpression("Diameter", "Params.hole19_diameter")
hole19.DepthType = "ThroughAll"

sketch23 = body.newObject("Sketcher::SketchObject", "Sketch022")
sketch23.AttachmentSupport = (doc.getObject("XY_Plane"), [""])
sketch23.MapMode = "FlatFace"
sketch23.AttachmentOffset = App.Placement(Vector(0, 0, 1.25), App.Rotation())
sketch23.addGeometry(Part.Circle(Vector(-0.65, -32.7699, 0), Vector(0, 0, 1), 1.5), False)
sketch23.addConstraint([
    Sketcher.Constraint("Diameter", 0, Q("3 mm")),
    Sketcher.Constraint("DistanceX", 0, 3, -1, 1, Q("0.65 mm")),
    Sketcher.Constraint("DistanceY", 0, 3, -1, 1, Q("32.77 mm")),
])
sketch23.setExpression("Constraints[0]", "Params.sketch23_diameter")
doc.recompute()
hole20 = body.newObject("PartDesign::Hole", "Hole019")
hole20.Profile = sketch23
hole20.ThreadType = "None"
hole20.setExpression("Diameter", "Params.hole20_diameter")
hole20.DepthType = "ThroughAll"

sketch24 = body.newObject("Sketcher::SketchObject", "Sketch023")
sketch24.AttachmentSupport = (doc.getObject("XY_Plane"), [""])
sketch24.MapMode = "FlatFace"
sketch24.AttachmentOffset = App.Placement(Vector(0, 0, 1.25), App.Rotation())
sketch24.addGeometry(Part.Circle(Vector(85.35, -21.7699, 0), Vector(0, 0, 1), 1.5), False)
sketch24.addConstraint([
    Sketcher.Constraint("Diameter", 0, Q("3 mm")),
    Sketcher.Constraint("DistanceX", -1, 1, 0, 3, Q("85.35 mm")),
    Sketcher.Constraint("DistanceY", 0, 3, -1, 1, Q("21.77 mm")),
])
sketch24.setExpression("Constraints[0]", "Params.sketch24_diameter")
doc.recompute()
hole21 = body.newObject("PartDesign::Hole", "Hole020")
hole21.Profile = sketch24
hole21.ThreadType = "None"
hole21.setExpression("Diameter", "Params.hole21_diameter")
hole21.DepthType = "ThroughAll"

sketch25 = body.newObject("Sketcher::SketchObject", "Sketch024")
sketch25.AttachmentSupport = (doc.getObject("XY_Plane"), [""])
sketch25.MapMode = "FlatFace"
sketch25.AttachmentOffset = App.Placement(Vector(0, 0, 1.25), App.Rotation())
sketch25.addGeometry(Part.Circle(Vector(85.35, -32.7699, 0), Vector(0, 0, 1), 1.5), False)
sketch25.addConstraint([
    Sketcher.Constraint("Diameter", 0, Q("3 mm")),
    Sketcher.Constraint("DistanceX", -1, 1, 0, 3, Q("85.35 mm")),
    Sketcher.Constraint("DistanceY", 0, 3, -1, 1, Q("32.77 mm")),
])
sketch25.setExpression("Constraints[0]", "Params.sketch25_diameter")
doc.recompute()
hole22 = body.newObject("PartDesign::Hole", "Hole021")
hole22.Profile = sketch25
hole22.ThreadType = "None"
hole22.setExpression("Diameter", "Params.hole22_diameter")
hole22.DepthType = "ThroughAll"

doc.recompute()
